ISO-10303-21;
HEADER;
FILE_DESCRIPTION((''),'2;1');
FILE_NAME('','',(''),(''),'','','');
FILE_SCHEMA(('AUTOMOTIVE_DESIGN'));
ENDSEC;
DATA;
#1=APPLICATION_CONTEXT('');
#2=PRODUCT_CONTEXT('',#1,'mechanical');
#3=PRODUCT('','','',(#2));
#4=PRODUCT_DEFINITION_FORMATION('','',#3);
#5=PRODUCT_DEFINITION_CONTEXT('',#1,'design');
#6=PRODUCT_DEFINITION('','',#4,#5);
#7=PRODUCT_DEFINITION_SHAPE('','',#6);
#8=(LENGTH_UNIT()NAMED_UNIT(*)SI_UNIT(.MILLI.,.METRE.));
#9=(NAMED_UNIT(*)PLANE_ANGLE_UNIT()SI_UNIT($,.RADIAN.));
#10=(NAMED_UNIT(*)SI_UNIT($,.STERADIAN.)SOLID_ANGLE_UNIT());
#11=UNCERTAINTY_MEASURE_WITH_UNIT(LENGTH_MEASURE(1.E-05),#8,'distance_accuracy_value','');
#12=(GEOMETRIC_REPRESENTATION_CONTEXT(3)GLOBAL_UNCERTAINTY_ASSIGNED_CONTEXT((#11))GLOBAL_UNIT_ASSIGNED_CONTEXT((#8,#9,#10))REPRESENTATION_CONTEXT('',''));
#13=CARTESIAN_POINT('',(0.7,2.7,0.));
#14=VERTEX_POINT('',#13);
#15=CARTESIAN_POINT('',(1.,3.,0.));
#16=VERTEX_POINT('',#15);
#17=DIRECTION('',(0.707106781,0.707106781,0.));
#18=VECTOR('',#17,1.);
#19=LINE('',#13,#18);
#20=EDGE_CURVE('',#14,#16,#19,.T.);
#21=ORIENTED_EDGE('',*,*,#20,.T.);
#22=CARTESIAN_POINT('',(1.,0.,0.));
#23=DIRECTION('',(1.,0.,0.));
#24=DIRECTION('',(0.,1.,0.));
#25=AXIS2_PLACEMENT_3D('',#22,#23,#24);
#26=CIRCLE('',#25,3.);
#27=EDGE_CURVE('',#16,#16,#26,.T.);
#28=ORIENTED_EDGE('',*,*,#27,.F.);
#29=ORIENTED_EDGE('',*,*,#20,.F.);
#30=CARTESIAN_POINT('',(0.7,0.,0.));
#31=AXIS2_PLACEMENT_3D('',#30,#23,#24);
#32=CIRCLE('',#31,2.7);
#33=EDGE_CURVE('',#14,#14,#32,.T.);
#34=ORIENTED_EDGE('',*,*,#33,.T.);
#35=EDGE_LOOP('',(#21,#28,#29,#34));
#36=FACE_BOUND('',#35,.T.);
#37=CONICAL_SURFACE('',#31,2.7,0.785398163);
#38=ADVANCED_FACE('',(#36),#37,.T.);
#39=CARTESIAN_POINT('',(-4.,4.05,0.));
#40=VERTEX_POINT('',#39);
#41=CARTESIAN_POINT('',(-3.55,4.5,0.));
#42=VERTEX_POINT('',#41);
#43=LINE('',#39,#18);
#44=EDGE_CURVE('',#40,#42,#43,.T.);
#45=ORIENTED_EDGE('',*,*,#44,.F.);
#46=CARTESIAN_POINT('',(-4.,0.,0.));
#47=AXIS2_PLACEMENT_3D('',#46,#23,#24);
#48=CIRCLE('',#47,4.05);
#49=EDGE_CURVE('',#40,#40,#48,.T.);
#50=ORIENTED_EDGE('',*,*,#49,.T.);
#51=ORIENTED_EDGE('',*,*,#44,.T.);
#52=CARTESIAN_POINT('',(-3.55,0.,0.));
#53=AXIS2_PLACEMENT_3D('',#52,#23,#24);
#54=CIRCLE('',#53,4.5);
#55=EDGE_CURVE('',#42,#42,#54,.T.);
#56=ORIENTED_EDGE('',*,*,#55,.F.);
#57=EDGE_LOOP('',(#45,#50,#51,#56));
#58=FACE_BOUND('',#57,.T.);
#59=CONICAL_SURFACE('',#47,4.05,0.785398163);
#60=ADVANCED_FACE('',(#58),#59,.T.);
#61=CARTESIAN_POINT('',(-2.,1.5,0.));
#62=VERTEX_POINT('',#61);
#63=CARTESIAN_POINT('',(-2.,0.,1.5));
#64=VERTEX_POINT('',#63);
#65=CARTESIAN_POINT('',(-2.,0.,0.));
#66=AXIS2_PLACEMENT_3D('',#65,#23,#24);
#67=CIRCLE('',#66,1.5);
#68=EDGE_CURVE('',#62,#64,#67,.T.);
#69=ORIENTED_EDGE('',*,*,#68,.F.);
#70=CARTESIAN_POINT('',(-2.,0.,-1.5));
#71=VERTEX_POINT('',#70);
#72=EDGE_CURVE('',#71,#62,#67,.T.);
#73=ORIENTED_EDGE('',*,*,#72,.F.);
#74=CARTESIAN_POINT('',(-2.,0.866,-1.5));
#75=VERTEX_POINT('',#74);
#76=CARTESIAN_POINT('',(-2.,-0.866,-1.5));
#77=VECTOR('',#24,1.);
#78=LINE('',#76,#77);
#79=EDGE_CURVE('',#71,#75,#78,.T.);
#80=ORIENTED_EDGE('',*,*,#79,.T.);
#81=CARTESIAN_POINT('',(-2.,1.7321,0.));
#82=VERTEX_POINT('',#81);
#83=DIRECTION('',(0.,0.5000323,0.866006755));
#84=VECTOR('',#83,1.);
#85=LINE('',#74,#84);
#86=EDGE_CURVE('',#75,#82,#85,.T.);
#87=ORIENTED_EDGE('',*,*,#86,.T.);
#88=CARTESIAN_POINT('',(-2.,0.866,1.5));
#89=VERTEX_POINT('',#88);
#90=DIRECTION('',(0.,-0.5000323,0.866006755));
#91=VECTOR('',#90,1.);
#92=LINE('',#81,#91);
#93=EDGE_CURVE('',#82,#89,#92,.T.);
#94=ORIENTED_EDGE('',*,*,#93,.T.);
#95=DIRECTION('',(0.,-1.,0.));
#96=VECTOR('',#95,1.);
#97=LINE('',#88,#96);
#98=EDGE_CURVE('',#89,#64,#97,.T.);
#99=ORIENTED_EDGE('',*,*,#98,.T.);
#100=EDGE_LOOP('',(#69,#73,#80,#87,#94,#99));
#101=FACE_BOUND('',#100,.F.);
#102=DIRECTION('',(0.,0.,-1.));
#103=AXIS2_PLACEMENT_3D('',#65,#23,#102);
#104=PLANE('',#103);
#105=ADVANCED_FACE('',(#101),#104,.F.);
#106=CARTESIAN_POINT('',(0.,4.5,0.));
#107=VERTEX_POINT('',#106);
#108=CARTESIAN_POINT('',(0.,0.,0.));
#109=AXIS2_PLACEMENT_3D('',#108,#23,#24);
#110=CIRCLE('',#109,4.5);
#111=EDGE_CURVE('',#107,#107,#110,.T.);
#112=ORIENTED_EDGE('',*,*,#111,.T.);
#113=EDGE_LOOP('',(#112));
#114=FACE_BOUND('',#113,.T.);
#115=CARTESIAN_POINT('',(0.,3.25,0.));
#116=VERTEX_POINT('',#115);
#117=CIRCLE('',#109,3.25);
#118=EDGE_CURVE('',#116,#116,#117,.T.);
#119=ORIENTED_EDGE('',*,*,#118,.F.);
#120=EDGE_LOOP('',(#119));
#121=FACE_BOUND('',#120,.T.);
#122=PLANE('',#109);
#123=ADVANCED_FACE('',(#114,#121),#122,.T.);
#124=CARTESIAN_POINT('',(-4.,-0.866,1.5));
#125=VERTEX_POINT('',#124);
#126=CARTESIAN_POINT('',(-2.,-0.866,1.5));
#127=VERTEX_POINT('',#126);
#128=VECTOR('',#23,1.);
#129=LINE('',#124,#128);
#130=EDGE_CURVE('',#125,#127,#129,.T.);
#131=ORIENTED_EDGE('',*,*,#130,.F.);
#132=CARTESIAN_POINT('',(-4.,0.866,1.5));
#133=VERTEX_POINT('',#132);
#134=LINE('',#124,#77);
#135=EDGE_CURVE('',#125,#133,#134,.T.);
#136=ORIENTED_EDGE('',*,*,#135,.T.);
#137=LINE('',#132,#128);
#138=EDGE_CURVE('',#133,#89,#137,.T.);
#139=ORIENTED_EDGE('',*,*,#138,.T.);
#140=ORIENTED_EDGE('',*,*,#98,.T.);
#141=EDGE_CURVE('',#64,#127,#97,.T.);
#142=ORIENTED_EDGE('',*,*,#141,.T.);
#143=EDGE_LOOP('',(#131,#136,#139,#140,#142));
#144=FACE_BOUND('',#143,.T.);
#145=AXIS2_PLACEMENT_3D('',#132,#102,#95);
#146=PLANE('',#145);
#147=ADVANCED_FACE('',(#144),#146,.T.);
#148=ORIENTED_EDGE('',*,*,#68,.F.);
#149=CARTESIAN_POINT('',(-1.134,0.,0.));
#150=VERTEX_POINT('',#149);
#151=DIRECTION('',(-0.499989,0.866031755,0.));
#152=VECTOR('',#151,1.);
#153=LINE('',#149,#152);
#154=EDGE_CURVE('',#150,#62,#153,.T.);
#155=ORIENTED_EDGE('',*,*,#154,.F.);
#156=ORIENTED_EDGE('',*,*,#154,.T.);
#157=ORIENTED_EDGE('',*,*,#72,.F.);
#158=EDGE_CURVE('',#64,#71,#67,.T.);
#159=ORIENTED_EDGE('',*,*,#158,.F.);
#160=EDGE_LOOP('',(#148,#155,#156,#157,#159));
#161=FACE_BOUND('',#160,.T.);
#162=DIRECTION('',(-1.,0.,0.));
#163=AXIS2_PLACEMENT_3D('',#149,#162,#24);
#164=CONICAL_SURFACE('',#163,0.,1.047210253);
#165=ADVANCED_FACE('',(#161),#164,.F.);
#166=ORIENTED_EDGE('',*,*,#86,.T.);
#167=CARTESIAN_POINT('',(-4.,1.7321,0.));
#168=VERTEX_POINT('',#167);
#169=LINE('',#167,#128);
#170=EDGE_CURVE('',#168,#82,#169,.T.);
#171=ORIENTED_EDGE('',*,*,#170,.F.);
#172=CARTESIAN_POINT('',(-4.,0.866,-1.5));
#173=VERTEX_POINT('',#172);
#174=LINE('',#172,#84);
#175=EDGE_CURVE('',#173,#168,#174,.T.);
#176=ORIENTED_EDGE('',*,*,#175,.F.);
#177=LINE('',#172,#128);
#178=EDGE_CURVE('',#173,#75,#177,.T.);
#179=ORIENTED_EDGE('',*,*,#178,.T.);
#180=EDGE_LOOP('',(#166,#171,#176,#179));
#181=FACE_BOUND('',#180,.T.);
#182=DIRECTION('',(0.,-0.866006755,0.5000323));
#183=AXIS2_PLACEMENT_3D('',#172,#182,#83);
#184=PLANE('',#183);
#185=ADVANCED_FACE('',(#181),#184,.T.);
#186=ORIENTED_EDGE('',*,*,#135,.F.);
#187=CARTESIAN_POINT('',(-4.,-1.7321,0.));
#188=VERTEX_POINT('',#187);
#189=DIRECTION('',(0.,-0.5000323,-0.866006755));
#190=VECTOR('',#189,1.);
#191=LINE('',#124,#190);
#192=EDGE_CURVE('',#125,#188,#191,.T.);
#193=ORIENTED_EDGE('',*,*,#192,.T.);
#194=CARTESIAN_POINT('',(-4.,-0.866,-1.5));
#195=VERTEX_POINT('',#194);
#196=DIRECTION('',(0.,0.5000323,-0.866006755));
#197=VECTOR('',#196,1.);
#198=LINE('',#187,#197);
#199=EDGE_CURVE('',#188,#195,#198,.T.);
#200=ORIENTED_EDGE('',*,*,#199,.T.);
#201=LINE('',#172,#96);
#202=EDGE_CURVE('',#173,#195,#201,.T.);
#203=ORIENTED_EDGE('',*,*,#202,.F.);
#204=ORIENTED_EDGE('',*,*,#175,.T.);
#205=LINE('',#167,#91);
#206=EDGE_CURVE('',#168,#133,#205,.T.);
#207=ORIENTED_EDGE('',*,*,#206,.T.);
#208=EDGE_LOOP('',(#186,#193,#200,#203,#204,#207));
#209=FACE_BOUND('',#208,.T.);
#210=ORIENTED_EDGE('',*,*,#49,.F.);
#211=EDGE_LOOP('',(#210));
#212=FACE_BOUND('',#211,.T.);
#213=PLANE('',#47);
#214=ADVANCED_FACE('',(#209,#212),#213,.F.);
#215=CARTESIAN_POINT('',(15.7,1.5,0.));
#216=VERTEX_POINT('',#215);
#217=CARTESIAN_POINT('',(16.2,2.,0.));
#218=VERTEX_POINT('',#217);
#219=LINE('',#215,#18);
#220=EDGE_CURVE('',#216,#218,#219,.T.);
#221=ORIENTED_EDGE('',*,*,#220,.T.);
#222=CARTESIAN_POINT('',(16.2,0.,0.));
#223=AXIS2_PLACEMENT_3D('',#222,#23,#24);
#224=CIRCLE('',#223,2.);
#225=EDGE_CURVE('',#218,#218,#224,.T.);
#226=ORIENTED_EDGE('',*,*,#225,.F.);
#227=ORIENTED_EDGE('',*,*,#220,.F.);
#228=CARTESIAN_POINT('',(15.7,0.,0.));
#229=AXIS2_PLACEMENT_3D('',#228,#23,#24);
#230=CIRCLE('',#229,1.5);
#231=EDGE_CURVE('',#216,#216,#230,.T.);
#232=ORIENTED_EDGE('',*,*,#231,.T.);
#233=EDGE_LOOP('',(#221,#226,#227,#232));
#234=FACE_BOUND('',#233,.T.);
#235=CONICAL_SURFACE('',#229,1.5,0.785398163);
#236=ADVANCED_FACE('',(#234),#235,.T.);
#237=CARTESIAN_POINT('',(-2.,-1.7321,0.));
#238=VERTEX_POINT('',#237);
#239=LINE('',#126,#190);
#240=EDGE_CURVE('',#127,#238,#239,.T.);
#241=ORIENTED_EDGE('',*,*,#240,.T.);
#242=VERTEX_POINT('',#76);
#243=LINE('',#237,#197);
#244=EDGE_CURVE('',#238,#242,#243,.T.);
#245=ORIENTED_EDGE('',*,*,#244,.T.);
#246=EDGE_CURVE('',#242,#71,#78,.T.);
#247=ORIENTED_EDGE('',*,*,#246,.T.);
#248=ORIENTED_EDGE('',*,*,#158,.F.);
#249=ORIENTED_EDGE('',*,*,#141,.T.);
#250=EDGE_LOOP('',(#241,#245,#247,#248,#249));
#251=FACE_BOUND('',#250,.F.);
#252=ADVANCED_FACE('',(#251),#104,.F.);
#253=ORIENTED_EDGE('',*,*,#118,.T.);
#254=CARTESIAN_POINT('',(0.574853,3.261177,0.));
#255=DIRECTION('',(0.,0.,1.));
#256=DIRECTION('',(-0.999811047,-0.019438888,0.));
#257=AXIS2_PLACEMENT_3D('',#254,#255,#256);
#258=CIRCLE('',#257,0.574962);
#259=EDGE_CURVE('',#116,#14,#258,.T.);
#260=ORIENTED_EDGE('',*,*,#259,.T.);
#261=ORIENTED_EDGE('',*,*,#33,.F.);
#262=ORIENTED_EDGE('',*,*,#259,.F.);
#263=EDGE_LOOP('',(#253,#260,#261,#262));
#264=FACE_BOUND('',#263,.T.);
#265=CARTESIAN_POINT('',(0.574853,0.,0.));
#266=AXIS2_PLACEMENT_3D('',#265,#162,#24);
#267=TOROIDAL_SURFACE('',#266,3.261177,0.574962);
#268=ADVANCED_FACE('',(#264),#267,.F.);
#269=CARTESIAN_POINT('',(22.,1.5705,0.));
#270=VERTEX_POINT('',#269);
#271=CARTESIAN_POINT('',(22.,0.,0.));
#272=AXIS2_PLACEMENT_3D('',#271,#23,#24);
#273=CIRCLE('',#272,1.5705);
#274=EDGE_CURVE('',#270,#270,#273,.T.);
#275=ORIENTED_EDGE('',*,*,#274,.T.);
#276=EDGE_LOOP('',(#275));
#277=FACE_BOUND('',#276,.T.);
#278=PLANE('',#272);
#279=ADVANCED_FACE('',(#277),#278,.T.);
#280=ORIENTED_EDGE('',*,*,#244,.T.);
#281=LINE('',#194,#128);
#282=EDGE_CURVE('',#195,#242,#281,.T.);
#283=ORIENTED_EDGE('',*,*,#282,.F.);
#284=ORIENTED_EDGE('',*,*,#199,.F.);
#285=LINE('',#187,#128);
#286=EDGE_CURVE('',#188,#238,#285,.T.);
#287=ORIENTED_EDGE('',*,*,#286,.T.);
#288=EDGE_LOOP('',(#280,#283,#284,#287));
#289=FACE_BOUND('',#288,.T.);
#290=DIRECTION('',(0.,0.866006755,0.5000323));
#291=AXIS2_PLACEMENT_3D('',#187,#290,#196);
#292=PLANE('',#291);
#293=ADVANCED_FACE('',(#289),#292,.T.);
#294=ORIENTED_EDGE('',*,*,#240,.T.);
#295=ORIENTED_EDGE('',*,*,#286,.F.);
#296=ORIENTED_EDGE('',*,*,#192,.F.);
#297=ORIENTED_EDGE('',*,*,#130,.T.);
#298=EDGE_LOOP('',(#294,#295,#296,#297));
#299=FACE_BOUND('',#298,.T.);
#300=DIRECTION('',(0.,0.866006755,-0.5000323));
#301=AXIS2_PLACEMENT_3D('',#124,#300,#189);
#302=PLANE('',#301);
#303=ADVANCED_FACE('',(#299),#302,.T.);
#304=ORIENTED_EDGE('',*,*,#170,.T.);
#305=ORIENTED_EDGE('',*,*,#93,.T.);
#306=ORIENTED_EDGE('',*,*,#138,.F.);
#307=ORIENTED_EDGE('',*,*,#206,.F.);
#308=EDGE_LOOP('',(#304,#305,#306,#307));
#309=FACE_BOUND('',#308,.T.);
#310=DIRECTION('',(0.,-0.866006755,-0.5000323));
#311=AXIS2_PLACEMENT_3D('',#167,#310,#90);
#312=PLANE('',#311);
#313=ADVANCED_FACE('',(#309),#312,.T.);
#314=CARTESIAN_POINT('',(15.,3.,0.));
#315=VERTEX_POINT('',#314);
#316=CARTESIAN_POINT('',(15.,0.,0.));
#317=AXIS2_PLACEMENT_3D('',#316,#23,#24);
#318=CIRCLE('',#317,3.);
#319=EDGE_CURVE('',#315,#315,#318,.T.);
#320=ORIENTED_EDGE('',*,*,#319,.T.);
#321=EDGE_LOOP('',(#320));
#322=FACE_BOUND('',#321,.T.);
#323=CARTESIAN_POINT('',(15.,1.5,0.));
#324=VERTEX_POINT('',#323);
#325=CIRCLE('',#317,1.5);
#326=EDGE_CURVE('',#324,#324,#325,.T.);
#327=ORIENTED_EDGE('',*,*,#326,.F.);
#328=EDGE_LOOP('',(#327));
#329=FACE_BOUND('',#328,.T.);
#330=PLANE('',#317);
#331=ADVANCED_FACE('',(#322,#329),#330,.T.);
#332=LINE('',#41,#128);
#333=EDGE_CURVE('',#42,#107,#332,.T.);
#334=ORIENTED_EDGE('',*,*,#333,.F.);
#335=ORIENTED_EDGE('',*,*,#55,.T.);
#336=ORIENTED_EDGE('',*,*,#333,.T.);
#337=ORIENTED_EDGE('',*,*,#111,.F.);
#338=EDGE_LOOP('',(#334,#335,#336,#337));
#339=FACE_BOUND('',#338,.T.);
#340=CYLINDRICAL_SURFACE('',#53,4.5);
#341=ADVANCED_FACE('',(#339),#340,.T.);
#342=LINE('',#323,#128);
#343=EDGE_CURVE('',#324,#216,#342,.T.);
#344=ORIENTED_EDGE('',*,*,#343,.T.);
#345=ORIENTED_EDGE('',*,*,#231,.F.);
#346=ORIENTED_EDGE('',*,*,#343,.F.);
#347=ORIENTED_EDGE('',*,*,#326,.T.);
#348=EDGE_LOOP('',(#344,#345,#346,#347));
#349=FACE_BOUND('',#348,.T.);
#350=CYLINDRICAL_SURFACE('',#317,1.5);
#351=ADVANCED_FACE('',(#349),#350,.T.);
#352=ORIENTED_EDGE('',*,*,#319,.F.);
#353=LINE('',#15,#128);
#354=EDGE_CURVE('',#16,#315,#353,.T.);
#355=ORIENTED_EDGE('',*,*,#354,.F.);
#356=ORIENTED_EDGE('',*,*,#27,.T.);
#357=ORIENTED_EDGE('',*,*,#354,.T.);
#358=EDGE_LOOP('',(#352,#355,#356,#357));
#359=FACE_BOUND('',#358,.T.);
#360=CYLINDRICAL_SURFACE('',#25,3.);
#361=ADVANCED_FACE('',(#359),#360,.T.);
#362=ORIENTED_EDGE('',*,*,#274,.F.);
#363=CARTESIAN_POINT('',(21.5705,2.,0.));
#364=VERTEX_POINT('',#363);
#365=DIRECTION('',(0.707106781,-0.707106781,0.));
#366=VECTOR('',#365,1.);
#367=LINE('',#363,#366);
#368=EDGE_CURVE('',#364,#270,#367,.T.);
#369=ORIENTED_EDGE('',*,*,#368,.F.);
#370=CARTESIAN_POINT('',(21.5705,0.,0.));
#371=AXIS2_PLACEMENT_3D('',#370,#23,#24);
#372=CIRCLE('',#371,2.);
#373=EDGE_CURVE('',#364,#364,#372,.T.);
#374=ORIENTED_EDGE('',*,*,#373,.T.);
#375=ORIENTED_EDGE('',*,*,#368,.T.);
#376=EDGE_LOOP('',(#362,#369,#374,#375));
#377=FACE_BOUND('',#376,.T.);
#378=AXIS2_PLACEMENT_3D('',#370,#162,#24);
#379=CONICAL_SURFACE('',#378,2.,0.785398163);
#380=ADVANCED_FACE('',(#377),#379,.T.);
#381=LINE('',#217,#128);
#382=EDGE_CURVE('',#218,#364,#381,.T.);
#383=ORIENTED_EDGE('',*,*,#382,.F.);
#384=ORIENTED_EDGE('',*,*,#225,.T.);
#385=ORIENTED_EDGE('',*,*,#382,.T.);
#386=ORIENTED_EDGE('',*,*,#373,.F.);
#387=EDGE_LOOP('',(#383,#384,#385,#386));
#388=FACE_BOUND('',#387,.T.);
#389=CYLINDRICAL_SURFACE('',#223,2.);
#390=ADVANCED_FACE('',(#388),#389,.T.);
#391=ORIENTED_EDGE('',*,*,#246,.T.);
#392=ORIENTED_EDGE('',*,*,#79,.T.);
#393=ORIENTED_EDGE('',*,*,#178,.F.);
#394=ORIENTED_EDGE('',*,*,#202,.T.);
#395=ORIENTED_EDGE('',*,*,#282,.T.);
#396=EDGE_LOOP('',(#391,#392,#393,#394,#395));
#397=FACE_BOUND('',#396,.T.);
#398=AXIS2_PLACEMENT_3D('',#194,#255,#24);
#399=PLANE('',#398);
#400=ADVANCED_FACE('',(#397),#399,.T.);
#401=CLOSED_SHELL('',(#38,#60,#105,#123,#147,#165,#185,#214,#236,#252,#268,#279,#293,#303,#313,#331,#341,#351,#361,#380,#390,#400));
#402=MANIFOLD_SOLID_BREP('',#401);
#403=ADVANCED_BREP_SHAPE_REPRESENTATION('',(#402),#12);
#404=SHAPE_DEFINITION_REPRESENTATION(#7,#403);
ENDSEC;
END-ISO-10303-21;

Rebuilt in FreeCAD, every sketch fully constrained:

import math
import FreeCAD as App
import Part
import Sketcher
Q = App.Units.Quantity

doc = App.newDocument("Part")
body = doc.addObject("PartDesign::Body", "Body")

sketch1 = doc.addObject("Sketcher::SketchObject", "Sketch")
body.addObject(sketch1)
sketch1.AttachmentSupport = (doc.XY_Plane, [""])
sketch1.MapMode = "FlatFace"
sketch1.addGeometry(Part.LineSegment(App.Vector(-1.13, 0, 0), App.Vector(22, 0, 0)), False)
sketch1.addGeometry(Part.LineSegment(App.Vector(22, 0, 0), App.Vector(22, 1.57, 0)), False)
sketch1.addGeometry(Part.LineSegment(App.Vector(22, 1.57, 0), App.Vector(21.57, 2, 0)), False)
sketch1.addGeometry(Part.LineSegment(App.Vector(21.57, 2, 0), App.Vector(16.2, 2, 0)), False)
sketch1.addGeometry(Part.LineSegment(App.Vector(16.2, 2, 0), App.Vector(15.7, 1.5, 0)), False)
sketch1.addGeometry(Part.LineSegment(App.Vector(15.7, 1.5, 0), App.Vector(15, 1.5, 0)), False)
sketch1.addGeometry(Part.LineSegment(App.Vector(15, 1.5, 0), App.Vector(15, 3, 0)), False)
sketch1.addGeometry(Part.LineSegment(App.Vector(15, 3, 0), App.Vector(1, 3, 0)), False)
sketch1.addGeometry(Part.LineSegment(App.Vector(1, 3, 0), App.Vector(0.7, 2.7, 0)), False)
sketch1.addGeometry(Part.ArcOfCircle(Part.Circle(App.Vector(0.57, 3.26, 0), App.Vector(0, 0, 1), 0.58), math.radians(-179), math.radians(-77)), False)
sketch1.addGeometry(Part.LineSegment(App.Vector(0, 3.25, 0), App.Vector(0, 4.5, 0)), False)
sketch1.addGeometry(Part.LineSegment(App.Vector(0, 4.5, 0), App.Vector(-3.55, 4.5, 0)), False)
sketch1.addGeometry(Part.LineSegment(App.Vector(-3.55, 4.5, 0), App.Vector(-4, 4.05, 0)), False)
sketch1.addGeometry(Part.LineSegment(App.Vector(-4, 4.05, 0), App.Vector(-4, 1.5, 0)), False)
sketch1.addGeometry(Part.LineSegment(App.Vector(-4, 1.5, 0), App.Vector(-2, 1.5, 0)), False)
sketch1.addGeometry(Part.LineSegment(App.Vector(-2, 1.5, 0), App.Vector(-1.13, 0, 0)), False)
sketch1.addConstraint(Sketcher.Constraint("Coincident", 0, 2, 1, 1))
sketch1.addConstraint(Sketcher.Constraint("Coincident", 1, 2, 2, 1))
sketch1.addConstraint(Sketcher.Constraint("Coincident", 2, 2, 3, 1))
sketch1.addConstraint(Sketcher.Constraint("Coincident", 3, 2, 4, 1))
sketch1.addConstraint(Sketcher.Constraint("Coincident", 4, 2, 5, 1))
sketch1.addConstraint(Sketcher.Constraint("Coincident", 5, 2, 6, 1))
sketch1.addConstraint(Sketcher.Constraint("Coincident", 6, 2, 7, 1))
sketch1.addConstraint(Sketcher.Constraint("Coincident", 7, 2, 8, 1))
sketch1.addConstraint(Sketcher.Constraint("Coincident", 8, 2, 9, 2))
sketch1.addConstraint(Sketcher.Constraint("Coincident", 9, 1, 10, 1))
sketch1.addConstraint(Sketcher.Constraint("Coincident", 10, 2, 11, 1))
sketch1.addConstraint(Sketcher.Constraint("Coincident", 11, 2, 12, 1))
sketch1.addConstraint(Sketcher.Constraint("Coincident", 12, 2, 13, 1))
sketch1.addConstraint(Sketcher.Constraint("Coincident", 13, 2, 14, 1))
sketch1.addConstraint(Sketcher.Constraint("Coincident", 14, 2, 15, 1))
sketch1.addConstraint(Sketcher.Constraint("Coincident", 15, 2, 0, 1))
sketch1.addConstraint(Sketcher.Constraint("Horizontal", 0))
sketch1.addConstraint(Sketcher.Constraint("Vertical", 1))
sketch1.addConstraint(Sketcher.Constraint("Horizontal", 3))
sketch1.addConstraint(Sketcher.Constraint("Horizontal", 5))
sketch1.addConstraint(Sketcher.Constraint("Vertical", 6))
sketch1.addConstraint(Sketcher.Constraint("Horizontal", 7))
sketch1.addConstraint(Sketcher.Constraint("Vertical", 10))
sketch1.addConstraint(Sketcher.Constraint("Horizontal", 11))
sketch1.addConstraint(Sketcher.Constraint("Vertical", 13))
sketch1.addConstraint(Sketcher.Constraint("Horizontal", 14))
sketch1.addConstraint(Sketcher.Constraint("PointOnObject", 0, 2, -1))
sketch1.addConstraint(Sketcher.Constraint("PointOnObject", 9, 1, -2))
sketch1.addConstraint(Sketcher.Constraint("Perpendicular", 2, 4))
sketch1.addConstraint(Sketcher.Constraint("Parallel", 4, 8))
sketch1.addConstraint(Sketcher.Constraint("Parallel", 8, 12))
sketch1.addConstraint(Sketcher.Constraint("Horizontal", 5, 2, 13, 2))
sketch1.addConstraint(Sketcher.Constraint("DistanceX", 7, 2, 7, 1, 14.0))
sketch1.addConstraint(Sketcher.Constraint("DistanceX", 14, 1, 14, 2, 2.0))
sketch1.addConstraint(Sketcher.Constraint("Angle", 2, Q("135 deg")))
sketch1.addConstraint(Sketcher.Constraint("Angle", 15, Q("-60.0007 deg")))
sketch1.addConstraint(Sketcher.Constraint("DistanceX", 5, 2, 5, 1, 0.7))
sketch1.addConstraint(Sketcher.Constraint("DistanceY", 6, 1, 6, 2, 1.5))
sketch1.addConstraint(Sketcher.Constraint("DistanceX", -1, 1, 0, 2, 22.0))
sketch1.addConstraint(Sketcher.Constraint("DistanceY", -1, 1, 2, 2, 2.0))
sketch1.addConstraint(Sketcher.Constraint("DistanceX", -1, 1, 5, 2, 15.0))
sketch1.addConstraint(Sketcher.Constraint("DistanceY", -1, 1, 6, 2, 3.0))
sketch1.addConstraint(Sketcher.Constraint("DistanceX", 12, 2, -1, 1, 4.0))
sketch1.addConstraint(Sketcher.Constraint("Radius", 9, 0.575))
sketch1.addConstraint(Sketcher.Constraint("DistanceX", 8, 2, 4, 2, 15.0))
sketch1.addConstraint(Sketcher.Constraint("DistanceY", 13, 2, 11, 2, 3.0))
sketch1.addConstraint(Sketcher.Constraint("DistanceX", 11, 2, 11, 1, 3.55))
sketch1.addConstraint(Sketcher.Constraint("DistanceY", 10, 1, 10, 2, 1.25))
sketch1.addConstraint(Sketcher.Constraint("DistanceX", 3, 2, 3, 1, 5.3705))
revolution = doc.addObject("PartDesign::Revolution", "Revolution")
body.addObject(revolution)
revolution.Profile = sketch1
revolution.ReferenceAxis = (sketch1, ["H_Axis"])
revolution.Angle = 360

sketch2 = doc.addObject("Sketcher::SketchObject", "Sketch001")
body.addObject(sketch2)
sketch2.AttachmentSupport = (doc.YZ_Plane, [""])
sketch2.MapMode = "FlatFace"
sketch2.AttachmentOffset = App.Placement(App.Vector(0, 0, -4), App.Rotation())
sketch2.addGeometry(Part.LineSegment(App.Vector(0.9, 1.5, 0), App.Vector(-0.9, 1.5, 0)), False)
sketch2.addGeometry(Part.LineSegment(App.Vector(-0.9, 1.5, 0), App.Vector(-1.7, 0, 0)), False)
sketch2.addGeometry(Part.LineSegment(App.Vector(-1.7, 0, 0), App.Vector(-0.9, -1.5, 0)), False)
sketch2.addGeometry(Part.LineSegment(App.Vector(-0.9, -1.5, 0), App.Vector(0.9, -1.5, 0)), False)
sketch2.addGeometry(Part.LineSegment(App.Vector(0.9, -1.5, 0), App.Vector(1.7, 0, 0)), False)
sketch2.addGeometry(Part.LineSegment(App.Vector(1.7, 0, 0), App.Vector(0.9, 1.5, 0)), False)
sketch2.addConstraint(Sketcher.Constraint("Coincident", 0, 2, 1, 1))
sketch2.addConstraint(Sketcher.Constraint("Coincident", 1, 2, 2, 1))
sketch2.addConstraint(Sketcher.Constraint("Coincident", 2, 2, 3, 1))
sketch2.addConstraint(Sketcher.Constraint("Coincident", 3, 2, 4, 1))
sketch2.addConstraint(Sketcher.Constraint("Coincident", 4, 2, 5, 1))
sketch2.addConstraint(Sketcher.Constraint("Coincident", 5, 2, 0, 1))
sketch2.addConstraint(Sketcher.Constraint("Horizontal", 0))
sketch2.addConstraint(Sketcher.Constraint("Horizontal", 3))
sketch2.addConstraint(Sketcher.Constraint("Symmetric", 0, 2, 3, 2, -1, 1))
sketch2.addConstraint(Sketcher.Constraint("Symmetric", 1, 2, 4, 2, -1, 1))
sketch2.addConstraint(Sketcher.Constraint("PointOnObject", 1, 2, -1))
sketch2.addConstraint(Sketcher.Constraint("Parallel", 2, 5))
sketch2.addConstraint(Sketcher.Constraint("Vertical", 0, 2, 2, 2))
sketch2.addConstraint(Sketcher.Constraint("DistanceY", 2, 2, 0, 2, 3.0))
sketch2.addConstraint(Sketcher.Constraint("DistanceX", 0, 2, 0, 1, 1.732))
sketch2.addConstraint(Sketcher.Constraint("Distance", 1, 1.732))
pocket1 = doc.addObject("PartDesign::Pocket", "Pocket")
body.addObject(pocket1)
pocket1.Profile = sketch2
pocket1.Length = 2
pocket1.Reversed = True

doc.recompute()
